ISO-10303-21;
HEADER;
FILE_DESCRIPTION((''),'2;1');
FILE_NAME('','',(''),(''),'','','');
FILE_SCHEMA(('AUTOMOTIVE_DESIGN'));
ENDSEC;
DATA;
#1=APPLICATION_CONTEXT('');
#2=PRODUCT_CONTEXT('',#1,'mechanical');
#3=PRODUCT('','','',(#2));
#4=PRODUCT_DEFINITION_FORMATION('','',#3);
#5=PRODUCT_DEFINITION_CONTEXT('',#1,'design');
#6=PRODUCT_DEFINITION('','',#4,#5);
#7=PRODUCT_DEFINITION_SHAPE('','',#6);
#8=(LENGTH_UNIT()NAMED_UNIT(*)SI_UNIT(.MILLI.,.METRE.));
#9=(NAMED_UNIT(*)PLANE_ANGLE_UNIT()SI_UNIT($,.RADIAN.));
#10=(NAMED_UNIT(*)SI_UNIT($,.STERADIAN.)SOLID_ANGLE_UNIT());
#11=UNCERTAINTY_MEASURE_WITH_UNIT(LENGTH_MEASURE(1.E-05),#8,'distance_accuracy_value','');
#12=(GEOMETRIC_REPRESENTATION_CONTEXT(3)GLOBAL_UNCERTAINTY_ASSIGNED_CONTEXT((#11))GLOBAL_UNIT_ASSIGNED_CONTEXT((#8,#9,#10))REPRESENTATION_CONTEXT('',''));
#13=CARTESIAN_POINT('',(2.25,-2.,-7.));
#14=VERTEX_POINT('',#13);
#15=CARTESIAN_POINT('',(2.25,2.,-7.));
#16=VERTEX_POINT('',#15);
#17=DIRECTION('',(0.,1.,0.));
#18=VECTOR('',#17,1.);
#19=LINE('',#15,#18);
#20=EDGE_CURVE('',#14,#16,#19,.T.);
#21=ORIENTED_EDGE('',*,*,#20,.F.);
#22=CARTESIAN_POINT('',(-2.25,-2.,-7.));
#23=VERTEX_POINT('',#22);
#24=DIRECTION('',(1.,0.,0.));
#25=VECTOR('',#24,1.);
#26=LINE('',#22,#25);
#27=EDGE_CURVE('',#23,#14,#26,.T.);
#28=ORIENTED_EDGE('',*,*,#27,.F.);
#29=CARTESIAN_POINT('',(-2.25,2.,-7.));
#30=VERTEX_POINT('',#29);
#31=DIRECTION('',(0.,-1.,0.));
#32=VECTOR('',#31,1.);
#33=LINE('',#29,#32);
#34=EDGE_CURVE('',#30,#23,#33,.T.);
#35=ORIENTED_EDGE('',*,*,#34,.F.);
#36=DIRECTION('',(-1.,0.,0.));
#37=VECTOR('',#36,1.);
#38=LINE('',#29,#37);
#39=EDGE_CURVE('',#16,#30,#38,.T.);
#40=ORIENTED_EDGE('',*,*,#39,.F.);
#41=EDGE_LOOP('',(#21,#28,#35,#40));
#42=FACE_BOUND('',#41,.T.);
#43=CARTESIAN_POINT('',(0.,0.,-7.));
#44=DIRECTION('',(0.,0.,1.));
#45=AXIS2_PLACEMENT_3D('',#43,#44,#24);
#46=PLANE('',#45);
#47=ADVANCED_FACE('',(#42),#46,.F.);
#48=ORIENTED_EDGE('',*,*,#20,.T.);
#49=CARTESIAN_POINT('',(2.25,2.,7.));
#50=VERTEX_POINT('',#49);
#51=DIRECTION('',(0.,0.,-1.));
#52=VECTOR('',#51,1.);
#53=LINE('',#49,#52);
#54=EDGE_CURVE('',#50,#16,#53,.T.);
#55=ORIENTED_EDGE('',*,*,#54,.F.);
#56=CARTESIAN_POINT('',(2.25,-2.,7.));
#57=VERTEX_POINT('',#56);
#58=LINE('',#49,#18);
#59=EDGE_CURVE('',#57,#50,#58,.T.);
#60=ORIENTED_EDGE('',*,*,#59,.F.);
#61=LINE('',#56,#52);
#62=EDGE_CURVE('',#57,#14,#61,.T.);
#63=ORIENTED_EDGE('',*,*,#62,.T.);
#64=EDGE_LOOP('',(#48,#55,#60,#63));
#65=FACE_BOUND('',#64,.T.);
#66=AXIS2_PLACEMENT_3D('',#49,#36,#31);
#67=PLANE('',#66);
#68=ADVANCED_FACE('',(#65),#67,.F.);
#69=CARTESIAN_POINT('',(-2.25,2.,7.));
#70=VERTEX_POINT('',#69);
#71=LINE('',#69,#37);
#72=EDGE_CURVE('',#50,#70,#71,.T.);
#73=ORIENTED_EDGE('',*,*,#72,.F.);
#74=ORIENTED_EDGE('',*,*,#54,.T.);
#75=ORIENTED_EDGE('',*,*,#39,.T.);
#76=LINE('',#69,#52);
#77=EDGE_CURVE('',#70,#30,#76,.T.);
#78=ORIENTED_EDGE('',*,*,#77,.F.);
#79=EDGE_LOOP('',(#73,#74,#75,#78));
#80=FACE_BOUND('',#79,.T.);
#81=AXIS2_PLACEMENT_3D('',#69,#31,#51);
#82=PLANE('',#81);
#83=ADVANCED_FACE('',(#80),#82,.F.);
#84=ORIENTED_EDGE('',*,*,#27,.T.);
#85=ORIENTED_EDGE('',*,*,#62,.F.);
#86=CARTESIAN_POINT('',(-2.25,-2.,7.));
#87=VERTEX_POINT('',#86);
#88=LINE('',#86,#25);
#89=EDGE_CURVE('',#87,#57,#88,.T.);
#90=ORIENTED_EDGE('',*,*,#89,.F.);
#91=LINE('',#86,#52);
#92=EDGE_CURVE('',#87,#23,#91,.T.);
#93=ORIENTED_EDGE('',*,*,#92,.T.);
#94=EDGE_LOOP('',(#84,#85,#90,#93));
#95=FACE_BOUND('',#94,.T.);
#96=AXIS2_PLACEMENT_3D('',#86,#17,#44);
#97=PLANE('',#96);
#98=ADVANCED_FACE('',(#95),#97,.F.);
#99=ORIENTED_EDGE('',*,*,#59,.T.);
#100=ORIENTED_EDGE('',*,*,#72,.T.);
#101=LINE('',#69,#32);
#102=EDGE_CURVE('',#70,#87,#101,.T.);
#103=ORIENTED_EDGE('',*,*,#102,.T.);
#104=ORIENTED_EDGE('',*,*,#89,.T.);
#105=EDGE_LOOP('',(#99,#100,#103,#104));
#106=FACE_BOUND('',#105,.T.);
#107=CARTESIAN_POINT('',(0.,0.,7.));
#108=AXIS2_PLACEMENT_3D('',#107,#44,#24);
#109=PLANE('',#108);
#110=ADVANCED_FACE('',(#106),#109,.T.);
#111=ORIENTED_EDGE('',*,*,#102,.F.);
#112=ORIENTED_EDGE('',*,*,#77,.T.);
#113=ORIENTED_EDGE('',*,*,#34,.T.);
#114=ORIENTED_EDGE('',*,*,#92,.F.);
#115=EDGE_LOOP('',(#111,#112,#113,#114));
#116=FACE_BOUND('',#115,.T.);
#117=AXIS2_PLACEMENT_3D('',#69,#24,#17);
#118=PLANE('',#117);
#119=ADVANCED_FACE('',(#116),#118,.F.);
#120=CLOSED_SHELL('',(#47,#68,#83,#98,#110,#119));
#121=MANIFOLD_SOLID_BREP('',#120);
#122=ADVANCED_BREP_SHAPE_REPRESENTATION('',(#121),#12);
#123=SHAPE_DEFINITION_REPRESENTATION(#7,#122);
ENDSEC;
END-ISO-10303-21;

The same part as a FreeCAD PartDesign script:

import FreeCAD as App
import Part
import Sketcher
from FreeCAD import Vector

doc = App.newDocument("Part")
body = doc.addObject("PartDesign::Body", "Body")

# Sketch on XY plane
sketch1 = doc.addObject("Sketcher::SketchObject", "Sketch")
body.addObject(sketch1)
sketch1.AttachmentSupport = (doc.XY_Plane, [""])
sketch1.MapMode = "FlatFace"
sketch1.addGeometry([
    Part.LineSegment(Vector(-2.25, 2, 0), Vector(-2.25, -2, 0)),
    Part.LineSegment(Vector(-2.25, -2, 0), Vector(2.25, -2, 0)),
    Part.LineSegment(Vector(2.25, -2, 0), Vector(2.25, 2, 0)),
    Part.LineSegment(Vector(2.25, 2, 0), Vector(-2.25, 2, 0)),
], False)
sketch1.addConstraint([
    Sketcher.Constraint("Coincident", 0, 2, 1, 1),
    Sketcher.Constraint("Coincident", 1, 2, 2, 1),
    Sketcher.Constraint("Coincident", 2, 2, 3, 1),
    Sketcher.Constraint("Coincident", 3, 2, 0, 1),
    Sketcher.Constraint("Vertical", 0),
    Sketcher.Constraint("Horizontal", 1),
    Sketcher.Constraint("Vertical", 2),
    Sketcher.Constraint("Horizontal", 3),
    Sketcher.Constraint("Symmetric", 0, 2, 2, 2, -1, 1),
    Sketcher.Constraint("DistanceY", 0, 2, 0, 1, 4.0),
    Sketcher.Constraint("DistanceX", 1, 1, 1, 2, 4.5),
])
pad1 = doc.addObject("PartDesign::Pad", "Pad")
body.addObject(pad1)
pad1.Profile = sketch1
pad1.Length = 14
pad1.Midplane = True

doc.recompute()
